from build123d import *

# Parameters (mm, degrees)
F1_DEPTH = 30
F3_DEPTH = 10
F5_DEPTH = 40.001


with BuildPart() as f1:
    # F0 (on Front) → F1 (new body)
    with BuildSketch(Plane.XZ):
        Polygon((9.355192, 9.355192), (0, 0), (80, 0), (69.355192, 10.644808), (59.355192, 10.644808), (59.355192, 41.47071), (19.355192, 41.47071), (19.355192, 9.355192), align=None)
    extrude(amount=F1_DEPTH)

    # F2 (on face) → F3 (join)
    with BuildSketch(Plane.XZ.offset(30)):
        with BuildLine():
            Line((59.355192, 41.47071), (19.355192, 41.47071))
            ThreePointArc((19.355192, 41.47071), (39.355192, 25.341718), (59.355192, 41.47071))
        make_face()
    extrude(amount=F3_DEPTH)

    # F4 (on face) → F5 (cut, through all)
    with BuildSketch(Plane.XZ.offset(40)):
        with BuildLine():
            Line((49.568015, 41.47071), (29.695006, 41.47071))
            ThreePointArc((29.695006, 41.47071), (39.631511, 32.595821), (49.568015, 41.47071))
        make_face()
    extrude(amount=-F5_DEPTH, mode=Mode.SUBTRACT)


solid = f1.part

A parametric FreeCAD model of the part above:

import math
import FreeCAD as App
import Part
import Sketcher
Q = App.Units.Quantity

doc = App.newDocument("Part")
params = doc.addObject("Spreadsheet::Sheet", "Params")
for row, (alias, value) in enumerate([
    ("sketch1_width", "80 mm"),
    ("sketch1_width2", "10 mm"),
    ("sketch1_width3", "40 mm"),
    ("pad1_length", "30 mm"),
    ("sketch2_width", "40 mm"),
    ("pad2_length", "10 mm"),
    ("sketch3_radius", "10 mm"),
], start=1):
    params.set(f"A{row}", alias)
    params.set(f"B{row}", "=" + value)
    params.setAlias(f"B{row}", alias)

body = doc.addObject("PartDesign::Body", "Body")

sketch1 = body.newObject("Sketcher::SketchObject", "Sketch")
sketch1.AttachmentSupport = (doc.getObject("XZ_Plane"), [""])
sketch1.MapMode = "FlatFace"
sketch1.addGeometry(Part.LineSegment(App.Vector(9, 9, 0), App.Vector(0, 0, 0)), False)
sketch1.addGeometry(Part.LineSegment(App.Vector(0, 0, 0), App.Vector(80, 0, 0)), False)
sketch1.addGeometry(Part.LineSegment(App.Vector(80, 0, 0), App.Vector(69, 11, 0)), False)
sketch1.addGeometry(Part.LineSegment(App.Vector(69, 11, 0), App.Vector(59, 11, 0)), False)
sketch1.addGeometry(Part.LineSegment(App.Vector(59, 11, 0), App.Vector(59, 41, 0)), False)
sketch1.addGeometry(Part.LineSegment(App.Vector(59, 41, 0), App.Vector(19, 41, 0)), False)
sketch1.addGeometry(Part.LineSegment(App.Vector(19, 41, 0), App.Vector(19, 9, 0)), False)
sketch1.addGeometry(Part.LineSegment(App.Vector(19, 9, 0), App.Vector(9, 9, 0)), False)
sketch1.addConstraint(Sketcher.Constraint("Coincident", 0, 2, 1, 1))
sketch1.addConstraint(Sketcher.Constraint("Coincident", 1, 2, 2, 1))
sketch1.addConstraint(Sketcher.Constraint("Coincident", 2, 2, 3, 1))
sketch1.addConstraint(Sketcher.Constraint("Coincident", 3, 2, 4, 1))
sketch1.addConstraint(Sketcher.Constraint("Coincident", 4, 2, 5, 1))
sketch1.addConstraint(Sketcher.Constraint("Coincident", 5, 2, 6, 1))
sketch1.addConstraint(Sketcher.Constraint("Coincident", 6, 2, 7, 1))
sketch1.addConstraint(Sketcher.Constraint("Coincident", 7, 2, 0, 1))
sketch1.addConstraint(Sketcher.Constraint("Horizontal", 1))
sketch1.addConstraint(Sketcher.Constraint("Horizontal", 3))
sketch1.addConstraint(Sketcher.Constraint("Vertical", 4))
sketch1.addConstraint(Sketcher.Constraint("Horizontal", 5))
sketch1.addConstraint(Sketcher.Constraint("Vertical", 6))
sketch1.addConstraint(Sketcher.Constraint("Horizontal", 7))
sketch1.addConstraint(Sketcher.Constraint("Coincident", 0, 2, -1, 1))
sketch1.addConstraint(Sketcher.Constraint("Perpendicular", 0, 2))
sketch1.addConstraint(Sketcher.Constraint("Equal", 3, 7))
sketch1.addConstraint(Sketcher.Constraint("DistanceX", 1, 1, 1, 2, 80.0))
sketch1.addConstraint(Sketcher.Constraint("DistanceX", 3, 2, 3, 1, 10.0))
sketch1.addConstraint(Sketcher.Constraint("DistanceX", 5, 2, 5, 1, 40.0))
sketch1.addConstraint(Sketcher.Constraint("Angle", 0, Q("-135 deg")))
sketch1.addConstraint(Sketcher.Constraint("DistanceY", 4, 1, 4, 2, 30.825902))
sketch1.addConstraint(Sketcher.Constraint("Distance", 0, 13.230239))
sketch1.setExpression("Constraints[17]", "Params.sketch1_width")
sketch1.setExpression("Constraints[18]", "Params.sketch1_width2")
sketch1.setExpression("Constraints[19]", "Params.sketch1_width3")
pad1 = body.newObject("PartDesign::Pad", "Pad")
pad1.Profile = sketch1
pad1.setExpression("Length", "Params.pad1_length")

sketch2 = body.newObject("Sketcher::SketchObject", "Sketch001")
sketch2.AttachmentSupport = (doc.getObject("XZ_Plane"), [""])
sketch2.MapMode = "FlatFace"
sketch2.AttachmentOffset = App.Placement(App.Vector(0, 0, 30), App.Rotation())
sketch2.addGeometry(Part.LineSegment(App.Vector(59, 41, 0), App.Vector(19, 41, 0)), False)
sketch2.addGeometry(Part.ArcOfCircle(Part.Circle(App.Vector(39, 46, 0), App.Vector(0, 0, 1), 20), math.radians(-168), math.radians(-12)), False)
sketch2.addConstraint(Sketcher.Constraint("Coincident", 0, 1, 1, 2))
sketch2.addConstraint(Sketcher.Constraint("Coincident", 1, 1, 0, 2))
sketch2.addConstraint(Sketcher.Constraint("Horizontal", 0))
sketch2.addConstraint(Sketcher.Constraint("DistanceX", 0, 2, 0, 1, 40.0))
sketch2.addConstraint(Sketcher.Constraint("Radius", 1, 20.464527))
sketch2.addConstraint(Sketcher.Constraint("DistanceY", -1, 1, 0, 1, 41.47071))
sketch2.addConstraint(Sketcher.Constraint("DistanceX", -1, 1, 1, 3, 39.355192))
sketch2.setExpression("Constraints[3]", "Params.sketch2_width")
pad2 = body.newObject("PartDesign::Pad", "Pad001")
pad2.Profile = sketch2
pad2.setExpression("Length", "Params.pad2_length")

sketch3 = body.newObject("Sketcher::SketchObject", "Sketch002")
sketch3.AttachmentSupport = (doc.getObject("XZ_Plane"), [""])
sketch3.MapMode = "FlatFace"
sketch3.AttachmentOffset = App.Placement(App.Vector(0, 0, 40), App.Rotation())
sketch3.addGeometry(Part.LineSegment(App.Vector(50, 41, 0), App.Vector(30, 41, 0)), False)
sketch3.addGeometry(Part.ArcOfCircle(Part.Circle(App.Vector(40, 43, 0), App.Vector(0, 0, 1), 10), math.radians(-174), math.radians(-6)), False)
sketch3.addConstraint(Sketcher.Constraint("Coincident", 0, 1, 1, 2))
sketch3.addConstraint(Sketcher.Constraint("Coincident", 1, 1, 0, 2))
sketch3.addConstraint(Sketcher.Constraint("Horizontal", 0))
sketch3.addConstraint(Sketcher.Constraint("Radius", 1, 10.0))
sketch3.addConstraint(Sketcher.Constraint("DistanceX", 0, 2, 0, 1, 19.873009))
sketch3.addConstraint(Sketcher.Constraint("DistanceX", -1, 1, 1, 3, 39.63151))
sketch3.addConstraint(Sketcher.Constraint("DistanceY", -1, 1, 1, 3, 42.595821))
sketch3.setExpression("Constraints[3]", "Params.sketch3_radius")
pocket1 = body.newObject("PartDesign::Pocket", "Pocket")
pocket1.Profile = sketch3
pocket1.Type = "ThroughAll"

doc.recompute()
